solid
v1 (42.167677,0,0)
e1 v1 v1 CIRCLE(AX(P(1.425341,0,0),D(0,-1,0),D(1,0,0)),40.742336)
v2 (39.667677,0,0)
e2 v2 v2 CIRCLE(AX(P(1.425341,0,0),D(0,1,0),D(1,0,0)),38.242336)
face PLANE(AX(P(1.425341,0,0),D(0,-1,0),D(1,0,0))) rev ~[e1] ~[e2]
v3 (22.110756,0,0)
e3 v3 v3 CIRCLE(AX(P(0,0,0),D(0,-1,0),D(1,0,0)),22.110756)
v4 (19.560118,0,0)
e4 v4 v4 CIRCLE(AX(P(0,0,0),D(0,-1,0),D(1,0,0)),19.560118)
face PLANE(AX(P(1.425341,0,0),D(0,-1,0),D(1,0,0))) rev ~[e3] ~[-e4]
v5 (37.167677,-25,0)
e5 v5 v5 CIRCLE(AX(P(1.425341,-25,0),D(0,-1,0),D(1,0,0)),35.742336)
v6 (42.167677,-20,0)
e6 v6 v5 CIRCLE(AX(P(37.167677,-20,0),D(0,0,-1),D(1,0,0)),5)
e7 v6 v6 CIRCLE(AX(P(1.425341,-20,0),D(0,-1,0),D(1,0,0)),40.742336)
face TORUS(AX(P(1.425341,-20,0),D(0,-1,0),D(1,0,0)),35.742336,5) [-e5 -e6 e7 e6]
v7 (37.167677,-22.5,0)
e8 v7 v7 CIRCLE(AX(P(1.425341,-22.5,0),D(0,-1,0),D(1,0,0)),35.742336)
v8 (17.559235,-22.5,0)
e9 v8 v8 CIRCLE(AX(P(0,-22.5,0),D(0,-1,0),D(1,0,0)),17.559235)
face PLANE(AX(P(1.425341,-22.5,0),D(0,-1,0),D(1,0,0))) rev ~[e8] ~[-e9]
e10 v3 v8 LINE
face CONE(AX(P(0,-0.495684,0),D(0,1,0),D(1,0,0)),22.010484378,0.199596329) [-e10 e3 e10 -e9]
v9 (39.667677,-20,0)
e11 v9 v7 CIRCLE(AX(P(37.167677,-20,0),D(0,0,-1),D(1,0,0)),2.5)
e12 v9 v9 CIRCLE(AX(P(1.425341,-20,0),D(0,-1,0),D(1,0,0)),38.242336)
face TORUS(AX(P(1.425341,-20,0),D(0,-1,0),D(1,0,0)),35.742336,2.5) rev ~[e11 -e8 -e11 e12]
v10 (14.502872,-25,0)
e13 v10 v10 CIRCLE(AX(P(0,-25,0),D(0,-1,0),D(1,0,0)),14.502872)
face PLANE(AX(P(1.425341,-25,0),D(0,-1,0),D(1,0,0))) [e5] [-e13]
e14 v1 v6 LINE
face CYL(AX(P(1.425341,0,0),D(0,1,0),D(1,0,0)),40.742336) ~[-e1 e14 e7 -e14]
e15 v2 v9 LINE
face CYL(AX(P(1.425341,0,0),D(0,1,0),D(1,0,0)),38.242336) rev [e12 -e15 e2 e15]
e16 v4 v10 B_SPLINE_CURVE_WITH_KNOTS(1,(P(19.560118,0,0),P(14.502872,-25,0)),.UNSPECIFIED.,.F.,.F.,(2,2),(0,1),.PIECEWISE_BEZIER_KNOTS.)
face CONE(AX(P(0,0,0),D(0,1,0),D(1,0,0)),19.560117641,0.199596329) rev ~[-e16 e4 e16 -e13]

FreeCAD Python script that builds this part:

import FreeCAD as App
import Part
import Sketcher
from FreeCAD import Vector
Q = App.Units.Quantity


def edges_at(feature, points):
    """Names of the edges that pass closest to the given points."""
    edges = feature.Shape.Edges
    near = lambda p: min(range(len(edges)), key=lambda i: edges[i].distToShape(Part.Vertex(*p))[0])
    return sorted({f"Edge{near(p) + 1}" for p in points})


def faces_at(feature, points):
    """Names of the faces that lie closest to the given points."""
    faces = feature.Shape.Faces
    near = lambda p: min(range(len(faces)), key=lambda i: faces[i].distToShape(Part.Vertex(*p))[0])
    return sorted({f"Face{near(p) + 1}" for p in points})

doc = App.newDocument("Part")
body = doc.addObject("PartDesign::Body", "Body")

sketch1 = body.newObject("Sketcher::SketchObject", "Sketch")
sketch1.AttachmentSupport = (doc.getObject("XZ_Plane"), [""])
sketch1.MapMode = "FlatFace"
sketch1.addGeometry(Part.Circle(Vector(1, 0, 0), Vector(0, 0, 1), 41), False)
sketch1.addConstraint([
    Sketcher.Constraint("PointOnObject", 0, 3, -1),
    Sketcher.Constraint("Diameter", 0, Q("81.484672 mm")),
    Sketcher.Constraint("DistanceX", -1, 1, 0, 3, Q("1.425341 mm")),
])
pad1 = body.newObject("PartDesign::Pad", "Pad")
pad1.Profile = sketch1
pad1.Length = 25

sketch2 = body.newObject("Sketcher::SketchObject", "Sketch001")
sketch2.AttachmentSupport = (doc.getObject("XZ_Plane"), [""])
sketch2.MapMode = "FlatFace"
sketch2.addGeometry(Part.Circle(Vector(0, 0, 0), Vector(0, 0, 1), 20), False)
sketch2.addConstraint([
    Sketcher.Constraint("Coincident", 0, 3, -1, 1),
    Sketcher.Constraint("Diameter", 0, Q("39.120235 mm")),
])

sketch3 = body.newObject("Sketcher::SketchObject", "Sketch002")
sketch3.AttachmentSupport = (doc.getObject("XZ_Plane"), [""])
sketch3.MapMode = "FlatFace"
sketch3.AttachmentOffset = App.Placement(Vector(0, 0, 25), App.Rotation())
sketch3.addGeometry(Part.Circle(Vector(0, 0, 0), Vector(0, 0, 1), 15), False)
sketch3.addConstraint([
    Sketcher.Constraint("Coincident", 0, 3, -1, 1),
    Sketcher.Constraint("Diameter", 0, Q("29.005745 mm")),
])

subtractiveloft = body.newObject("PartDesign::SubtractiveLoft", "SubtractiveLoft")
subtractiveloft.Profile = sketch2
subtractiveloft.Sections = [sketch3]
doc.recompute()

fillet = body.newObject("PartDesign::Fillet", "Fillet")
fillet.Base = (subtractiveloft, edges_at(subtractiveloft, [(-39.317, -25, 0)]))
fillet.Radius = 5
doc.recompute()

thickness = body.newObject("PartDesign::Thickness", "Thickness")
thickness.Base = (fillet, faces_at(fillet, [(-14.872, 0, -16.297)]))
thickness.Value = 2.5
thickness.Reversed = True
thickness.Join = "Intersection"

doc.recompute()
